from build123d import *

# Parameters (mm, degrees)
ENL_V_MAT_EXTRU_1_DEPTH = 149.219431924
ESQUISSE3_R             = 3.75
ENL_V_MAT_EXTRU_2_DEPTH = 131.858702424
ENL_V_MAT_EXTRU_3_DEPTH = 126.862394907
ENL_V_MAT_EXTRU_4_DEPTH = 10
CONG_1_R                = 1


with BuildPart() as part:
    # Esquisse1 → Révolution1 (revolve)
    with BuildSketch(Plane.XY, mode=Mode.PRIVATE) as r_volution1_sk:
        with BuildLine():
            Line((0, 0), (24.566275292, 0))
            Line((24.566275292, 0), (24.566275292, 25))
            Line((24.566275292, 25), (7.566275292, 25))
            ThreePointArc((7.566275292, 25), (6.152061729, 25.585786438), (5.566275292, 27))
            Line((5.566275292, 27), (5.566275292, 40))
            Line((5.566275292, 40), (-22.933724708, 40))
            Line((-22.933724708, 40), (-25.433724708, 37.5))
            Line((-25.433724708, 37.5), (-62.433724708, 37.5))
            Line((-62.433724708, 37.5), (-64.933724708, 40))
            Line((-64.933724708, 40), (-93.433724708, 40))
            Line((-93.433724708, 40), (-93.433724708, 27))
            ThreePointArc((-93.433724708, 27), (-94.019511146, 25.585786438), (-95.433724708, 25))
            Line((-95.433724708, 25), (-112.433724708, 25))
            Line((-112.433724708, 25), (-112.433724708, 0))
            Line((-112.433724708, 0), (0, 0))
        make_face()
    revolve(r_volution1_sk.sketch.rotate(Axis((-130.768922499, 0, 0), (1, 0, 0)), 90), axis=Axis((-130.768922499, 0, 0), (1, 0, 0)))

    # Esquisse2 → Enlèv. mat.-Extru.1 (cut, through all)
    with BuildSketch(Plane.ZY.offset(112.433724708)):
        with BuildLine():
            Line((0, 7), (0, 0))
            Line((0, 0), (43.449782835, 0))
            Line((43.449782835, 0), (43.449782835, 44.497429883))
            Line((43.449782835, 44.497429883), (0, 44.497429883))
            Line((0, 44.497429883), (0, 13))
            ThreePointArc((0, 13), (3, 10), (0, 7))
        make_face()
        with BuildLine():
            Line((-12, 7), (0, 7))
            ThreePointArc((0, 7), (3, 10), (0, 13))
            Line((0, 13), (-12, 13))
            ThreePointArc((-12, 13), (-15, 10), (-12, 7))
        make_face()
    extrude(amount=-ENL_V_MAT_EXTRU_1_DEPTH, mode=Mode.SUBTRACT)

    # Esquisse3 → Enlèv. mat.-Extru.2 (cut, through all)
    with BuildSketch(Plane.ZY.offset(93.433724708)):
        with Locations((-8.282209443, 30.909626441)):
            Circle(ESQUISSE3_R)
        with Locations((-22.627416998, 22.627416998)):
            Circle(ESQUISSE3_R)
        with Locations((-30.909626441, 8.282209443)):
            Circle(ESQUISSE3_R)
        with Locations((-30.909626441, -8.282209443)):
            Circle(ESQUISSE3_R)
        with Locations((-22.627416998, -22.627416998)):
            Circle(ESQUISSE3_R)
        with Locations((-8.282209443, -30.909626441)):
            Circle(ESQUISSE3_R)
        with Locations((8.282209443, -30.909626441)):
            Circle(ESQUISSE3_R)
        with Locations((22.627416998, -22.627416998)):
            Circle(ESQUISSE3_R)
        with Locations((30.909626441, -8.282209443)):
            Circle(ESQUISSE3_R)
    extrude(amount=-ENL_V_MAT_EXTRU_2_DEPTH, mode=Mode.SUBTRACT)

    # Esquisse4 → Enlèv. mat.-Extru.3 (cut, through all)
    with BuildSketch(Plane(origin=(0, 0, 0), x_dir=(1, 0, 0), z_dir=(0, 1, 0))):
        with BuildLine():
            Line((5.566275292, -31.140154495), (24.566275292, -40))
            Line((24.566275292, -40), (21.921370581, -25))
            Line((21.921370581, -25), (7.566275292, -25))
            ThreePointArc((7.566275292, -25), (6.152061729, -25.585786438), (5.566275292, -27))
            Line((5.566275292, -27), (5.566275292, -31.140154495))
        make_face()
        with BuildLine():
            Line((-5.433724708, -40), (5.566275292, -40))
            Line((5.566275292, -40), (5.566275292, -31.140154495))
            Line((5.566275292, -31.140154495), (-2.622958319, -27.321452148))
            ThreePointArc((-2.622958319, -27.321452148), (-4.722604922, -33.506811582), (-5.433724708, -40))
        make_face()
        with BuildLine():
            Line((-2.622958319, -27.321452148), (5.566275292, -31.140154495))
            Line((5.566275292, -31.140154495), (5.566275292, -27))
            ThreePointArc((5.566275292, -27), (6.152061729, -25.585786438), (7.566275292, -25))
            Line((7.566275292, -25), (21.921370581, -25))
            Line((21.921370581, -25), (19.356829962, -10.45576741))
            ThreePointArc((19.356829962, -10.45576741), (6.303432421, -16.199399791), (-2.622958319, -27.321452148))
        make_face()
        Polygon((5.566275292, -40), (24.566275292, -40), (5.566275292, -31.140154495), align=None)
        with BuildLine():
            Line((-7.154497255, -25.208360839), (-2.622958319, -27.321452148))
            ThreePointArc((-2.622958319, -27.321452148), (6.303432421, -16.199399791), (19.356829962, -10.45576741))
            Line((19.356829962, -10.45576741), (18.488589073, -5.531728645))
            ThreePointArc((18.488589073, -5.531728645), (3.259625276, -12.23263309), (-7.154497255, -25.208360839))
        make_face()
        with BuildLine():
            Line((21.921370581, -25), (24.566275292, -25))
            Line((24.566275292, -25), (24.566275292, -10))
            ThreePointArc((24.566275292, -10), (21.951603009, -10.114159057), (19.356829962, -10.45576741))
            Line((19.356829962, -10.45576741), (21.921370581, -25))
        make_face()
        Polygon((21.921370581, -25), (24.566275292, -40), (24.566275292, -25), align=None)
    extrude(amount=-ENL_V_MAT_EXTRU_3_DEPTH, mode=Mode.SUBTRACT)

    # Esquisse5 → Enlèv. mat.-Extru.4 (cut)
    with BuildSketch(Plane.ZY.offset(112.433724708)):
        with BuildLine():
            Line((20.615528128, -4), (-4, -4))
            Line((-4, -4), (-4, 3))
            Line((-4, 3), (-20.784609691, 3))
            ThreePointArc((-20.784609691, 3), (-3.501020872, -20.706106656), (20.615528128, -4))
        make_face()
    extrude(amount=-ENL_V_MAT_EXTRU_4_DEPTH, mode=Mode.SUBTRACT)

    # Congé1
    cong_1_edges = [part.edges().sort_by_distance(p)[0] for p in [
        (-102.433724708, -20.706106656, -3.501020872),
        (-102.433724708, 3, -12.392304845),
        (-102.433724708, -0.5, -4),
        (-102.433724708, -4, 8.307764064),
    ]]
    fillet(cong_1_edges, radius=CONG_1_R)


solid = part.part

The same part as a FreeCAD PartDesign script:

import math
import FreeCAD as App
import Part
import Sketcher
Q = App.Units.Quantity


def edges_at(feature, points):
    """Names of the edges that pass closest to the given points."""
    edges = feature.Shape.Edges
    near = lambda p: min(range(len(edges)), key=lambda i: edges[i].distToShape(Part.Vertex(*p))[0])
    return sorted({f"Edge{near(p) + 1}" for p in points})

doc = App.newDocument("Part")
params = doc.addObject("Spreadsheet::Sheet", "Params")
for row, (alias, value) in enumerate([
    ("sketch1_radius", "2 mm"),
    ("sketch1_width", "17 mm"),
    ("sketch1_width2", "37 mm"),
    ("sketch1_width3", "137 mm"),
    ("sketch1_height", "25 mm"),
    ("revolution_angle", "360 deg"),
    ("sketch2_radius", "3 mm"),
    ("sketch2_width", "7 mm"),
    ("sketch2_height", "12 mm"),
    ("sketch3_diameter", "7.5 mm"),
    ("sketch4_radius", "30 mm"),
    ("sketch4_radius2", "35 mm"),
    ("sketch5_radius", "21 mm"),
    ("sketch5_width", "7 mm"),
    ("pocket4_length", "10 mm"),
    ("fillet_radius", "1 mm"),
], start=1):
    params.set(f"A{row}", alias)
    params.set(f"B{row}", "=" + value)
    params.setAlias(f"B{row}", alias)

body = doc.addObject("PartDesign::Body", "Body")

sketch1 = doc.addObject("Sketcher::SketchObject", "Sketch")
body.addObject(sketch1)
sketch1.AttachmentSupport = (doc.XY_Plane, [""])
sketch1.MapMode = "FlatFace"
sketch1.addGeometry([
    Part.LineSegment(App.Vector(24.6, 0, 0), App.Vector(24.6, 25, 0)),
    Part.LineSegment(App.Vector(24.6, 25, 0), App.Vector(7.6, 25, 0)),
    Part.ArcOfCircle(Part.Circle(App.Vector(7.6, 27, 0), App.Vector(0, 0, 1), 2), math.radians(180), math.radians(270)),
    Part.LineSegment(App.Vector(5.6, 27, 0), App.Vector(5.6, 40, 0)),
    Part.LineSegment(App.Vector(5.6, 40, 0), App.Vector(-22.9, 40, 0)),
    Part.LineSegment(App.Vector(-22.9, 40, 0), App.Vector(-25.4, 37.5, 0)),
    Part.LineSegment(App.Vector(-25.4, 37.5, 0), App.Vector(-62.4, 37.5, 0)),
    Part.LineSegment(App.Vector(-62.4, 37.5, 0), App.Vector(-64.9, 40, 0)),
    Part.LineSegment(App.Vector(-64.9, 40, 0), App.Vector(-93.4, 40, 0)),
    Part.LineSegment(App.Vector(-93.4, 40, 0), App.Vector(-93.4, 27, 0)),
    Part.ArcOfCircle(Part.Circle(App.Vector(-95.4, 27, 0), App.Vector(0, 0, 1), 2), math.radians(-90), math.radians(0)),
    Part.LineSegment(App.Vector(-95.4, 25, 0), App.Vector(-112.4, 25, 0)),
    Part.LineSegment(App.Vector(-112.4, 25, 0), App.Vector(-112.4, 0, 0)),
    Part.LineSegment(App.Vector(-112.4, 0, 0), App.Vector(24.6, 0, 0)),
], False)
sketch1.addConstraint([
    Sketcher.Constraint("Coincident", 0, 2, 1, 1),
    Sketcher.Constraint("Tangent", 1, 2, 2, 2),
    Sketcher.Constraint("Tangent", 2, 1, 3, 1),
    Sketcher.Constraint("Coincident", 3, 2, 4, 1),
    Sketcher.Constraint("Coincident", 4, 2, 5, 1),
    Sketcher.Constraint("Coincident", 5, 2, 6, 1),
    Sketcher.Constraint("Coincident", 6, 2, 7, 1),
    Sketcher.Constraint("Coincident", 7, 2, 8, 1),
    Sketcher.Constraint("Coincident", 8, 2, 9, 1),
    Sketcher.Constraint("Tangent", 9, 2, 10, 2),
    Sketcher.Constraint("Tangent", 10, 1, 11, 1),
    Sketcher.Constraint("Coincident", 11, 2, 12, 1),
    Sketcher.Constraint("Coincident", 12, 2, 13, 1),
    Sketcher.Constraint("Coincident", 13, 2, 0, 1),
    Sketcher.Constraint("Vertical", 0),
    Sketcher.Constraint("Horizontal", 1),
    Sketcher.Constraint("Vertical", 3),
    Sketcher.Constraint("Horizontal", 4),
    Sketcher.Constraint("Horizontal", 6),
    Sketcher.Constraint("Horizontal", 8),
    Sketcher.Constraint("Vertical", 9),
    Sketcher.Constraint("Horizontal", 11),
    Sketcher.Constraint("Vertical", 12),
    Sketcher.Constraint("Horizontal", 13),
    Sketcher.Constraint("Equal", 2, 10),
    Sketcher.Constraint("PointOnObject", 12, 2, -1),
    Sketcher.Constraint("Perpendicular", 5, 7),
    Sketcher.Constraint("Horizontal", 2, 3, 10, 3),
    Sketcher.Constraint("Horizontal", 4, 2, 7, 2),
    Sketcher.Constraint("Equal", 4, 8),
    Sketcher.Constraint("Equal", 1, 11),
    Sketcher.Constraint("Equal", 5, 7),
    Sketcher.Constraint("Radius", 2, Q("2 mm")),
    Sketcher.Constraint("DistanceX", 1, 2, 1, 1, Q("17 mm")),
    Sketcher.Constraint("DistanceX", 6, 2, 6, 1, Q("37 mm")),
    Sketcher.Constraint("DistanceX", 13, 1, 13, 2, Q("137 mm")),
    Sketcher.Constraint("DistanceY", 0, 1, 0, 2, Q("25 mm")),
    Sketcher.Constraint("DistanceY", 3, 1, 3, 2, Q("13 mm")),
    Sketcher.Constraint("DistanceX", 4, 2, 4, 1, Q("28.5 mm")),
    Sketcher.Constraint("DistanceX", -1, 1, 2, 3, Q("7.566275 mm")),
])
sketch1.setExpression("Constraints[32]", "Params.sketch1_radius")
sketch1.setExpression("Constraints[33]", "Params.sketch1_width")
sketch1.setExpression("Constraints[34]", "Params.sketch1_width2")
sketch1.setExpression("Constraints[35]", "Params.sketch1_width3")
sketch1.setExpression("Constraints[36]", "Params.sketch1_height")
revolution = doc.addObject("PartDesign::Revolution", "Revolution")
body.addObject(revolution)
revolution.Profile = sketch1
revolution.ReferenceAxis = (sketch1, ["H_Axis"])
revolution.setExpression("Angle", "Params.revolution_angle")

sketch2 = doc.addObject("Sketcher::SketchObject", "Sketch001")
body.addObject(sketch2)
sketch2.AttachmentSupport = (doc.YZ_Plane, [""])
sketch2.MapMode = "FlatFace"
sketch2.AttachmentOffset = App.Placement(App.Vector(0, 0, -112.433725), App.Rotation())
sketch2.addGeometry([
    Part.LineSegment(App.Vector(7, 0, 0), App.Vector(0, 0, 0)),
    Part.LineSegment(App.Vector(0, 0, 0), App.Vector(0, 43.4, 0)),
    Part.LineSegment(App.Vector(0, 43.4, 0), App.Vector(44.5, 43.4, 0)),
    Part.LineSegment(App.Vector(44.5, 43.4, 0), App.Vector(44.5, 0, 0)),
    Part.LineSegment(App.Vector(44.5, 0, 0), App.Vector(13, 0, 0)),
    Part.LineSegment(App.Vector(13, 0, 0), App.Vector(13, -12, 0)),
    Part.ArcOfCircle(Part.Circle(App.Vector(10, -12, 0), App.Vector(0, 0, 1), 3), math.radians(180), math.radians(360)),
    Part.LineSegment(App.Vector(7, -12, 0), App.Vector(7, 0, 0)),
], False)
sketch2.addConstraint([
    Sketcher.Constraint("Coincident", 0, 2, 1, 1),
    Sketcher.Constraint("Coincident", 1, 2, 2, 1),
    Sketcher.Constraint("Coincident", 2, 2, 3, 1),
    Sketcher.Constraint("Coincident", 3, 2, 4, 1),
    Sketcher.Constraint("Coincident", 4, 2, 5, 1),
    Sketcher.Constraint("Tangent", 5, 2, 6, 2),
    Sketcher.Constraint("Tangent", 6, 1, 7, 1),
    Sketcher.Constraint("Coincident", 7, 2, 0, 1),
    Sketcher.Constraint("Horizontal", 0),
    Sketcher.Constraint("Vertical", 1),
    Sketcher.Constraint("Horizontal", 2),
    Sketcher.Constraint("Vertical", 3),
    Sketcher.Constraint("Horizontal", 4),
    Sketcher.Constraint("Vertical", 5),
    Sketcher.Constraint("Vertical", 7),
    Sketcher.Constraint("Coincident", 0, 2, -1, 1),
    Sketcher.Constraint("PointOnObject", 3, 2, -1),
    Sketcher.Constraint("Radius", 6, Q("3 mm")),
    Sketcher.Constraint("DistanceX", 0, 2, 0, 1, Q("7 mm")),
    Sketcher.Constraint("DistanceY", 5, 2, 5, 1, Q("12 mm")),
    Sketcher.Constraint("DistanceX", 2, 1, 2, 2, Q("44.49743 mm")),
    Sketcher.Constraint("DistanceY", 1, 1, 1, 2, Q("43.449783 mm")),
])
sketch2.setExpression("Constraints[17]", "Params.sketch2_radius")
sketch2.setExpression("Constraints[18]", "Params.sketch2_width")
sketch2.setExpression("Constraints[19]", "Params.sketch2_height")
pocket1 = doc.addObject("PartDesign::Pocket", "Pocket")
body.addObject(pocket1)
pocket1.Profile = sketch2
pocket1.Type = "ThroughAll"
pocket1.Reversed = True

sketch3 = doc.addObject("Sketcher::SketchObject", "Sketch002")
body.addObject(sketch3)
sketch3.AttachmentSupport = (doc.YZ_Plane, [""])
sketch3.MapMode = "FlatFace"
sketch3.AttachmentOffset = App.Placement(App.Vector(0, 0, -93.433725), App.Rotation())
sketch3.addGeometry([
    Part.Circle(App.Vector(30.9, -8.3, 0), App.Vector(0, 0, 1), 3.8),
    Part.Circle(App.Vector(22.6, -22.6, 0), App.Vector(0, 0, 1), 3.8),
    Part.Circle(App.Vector(8.3, -30.9, 0), App.Vector(0, 0, 1), 3.8),
    Part.Circle(App.Vector(-8.3, -30.9, 0), App.Vector(0, 0, 1), 3.8),
    Part.Circle(App.Vector(-22.6, -22.6, 0), App.Vector(0, 0, 1), 3.8),
    Part.Circle(App.Vector(-30.9, -8.3, 0), App.Vector(0, 0, 1), 3.8),
    Part.Circle(App.Vector(-30.9, 8.3, 0), App.Vector(0, 0, 1), 3.8),
    Part.Circle(App.Vector(-22.6, 22.6, 0), App.Vector(0, 0, 1), 3.8),
    Part.Circle(App.Vector(-8.3, 30.9, 0), App.Vector(0, 0, 1), 3.8),
], False)
sketch3.addConstraint([
    Sketcher.Constraint("Equal", 0, 1),
    Sketcher.Constraint("Equal", 1, 2),
    Sketcher.Constraint("Equal", 2, 3),
    Sketcher.Constraint("Equal", 3, 4),
    Sketcher.Constraint("Equal", 4, 5),
    Sketcher.Constraint("Equal", 5, 6),
    Sketcher.Constraint("Equal", 6, 7),
    Sketcher.Constraint("Equal", 7, 8),
    Sketcher.Constraint("Symmetric", 0, 3, 6, 3, -1, 1),
    Sketcher.Constraint("Symmetric", 1, 3, 7, 3, -1, 1),
    Sketcher.Constraint("Symmetric", 2, 3, 8, 3, -1, 1),
    Sketcher.Constraint("Symmetric", 2, 3, 3, 3, -2),
    Sketcher.Constraint("Symmetric", 1, 3, 4, 3, -2),
    Sketcher.Constraint("Symmetric", 0, 3, 5, 3, -2),
    Sketcher.Constraint("Diameter", 0, Q("7.5 mm")),
    Sketcher.Constraint("DistanceY", 0, 3, -1, 1, Q("8.282209 mm")),
    Sketcher.Constraint("DistanceX", -1, 1, 2, 3, Q("8.282209 mm")),
    Sketcher.Constraint("DistanceX", 1, 3, 0, 3, Q("8.282209 mm")),
    Sketcher.Constraint("DistanceY", 2, 3, 1, 3, Q("8.282209 mm")),
    Sketcher.Constraint("DistanceX", -1, 1, 0, 3, Q("30.909626 mm")),
    Sketcher.Constraint("DistanceY", 1, 3, -1, 1, Q("22.627417 mm")),
])
sketch3.setExpression("Constraints[14]", "Params.sketch3_diameter")
pocket2 = doc.addObject("PartDesign::Pocket", "Pocket001")
body.addObject(pocket2)
pocket2.Profile = sketch3
pocket2.Type = "ThroughAll"
pocket2.Reversed = True

sketch4 = doc.addObject("Sketcher::SketchObject", "Sketch003")
body.addObject(sketch4)
sketch4.AttachmentSupport = (doc.XZ_Plane, [""])
sketch4.MapMode = "FlatFace"
sketch4.addGeometry([
    Part.ArcOfCircle(Part.Circle(App.Vector(25, 40, 0), App.Vector(0, 0, 1), 30), math.radians(-100), math.radians(-90)),
    Part.LineSegment(App.Vector(19, 10, 0), App.Vector(18, 6, 0)),
    Part.ArcOfCircle(Part.Circle(App.Vector(25, 40, 0), App.Vector(0, 0, 1), 35), math.radians(-155), math.radians(-100)),
    Part.LineSegment(App.Vector(-7, 25, 0), App.Vector(-3, 27, 0)),
    Part.ArcOfCircle(Part.Circle(App.Vector(25, 40, 0), App.Vector(0, 0, 1), 30), math.radians(180), math.radians(205)),
    Part.LineSegment(App.Vector(-5, 40, 0), App.Vector(25, 40, 0)),
    Part.LineSegment(App.Vector(25, 40, 0), App.Vector(25, 10, 0)),
], False)
sketch4.addConstraint([
    Sketcher.Constraint("Coincident", 0, 1, 1, 1),
    Sketcher.Constraint("Coincident", 1, 2, 2, 2),
    Sketcher.Constraint("Coincident", 2, 1, 3, 1),
    Sketcher.Constraint("Coincident", 3, 2, 4, 2),
    Sketcher.Constraint("Coincident", 4, 1, 5, 1),
    Sketcher.Constraint("Coincident", 5, 2, 6, 1),
    Sketcher.Constraint("Coincident", 6, 2, 0, 2),
    Sketcher.Constraint("Horizontal", 5),
    Sketcher.Constraint("Vertical", 6),
    Sketcher.Constraint("Coincident", 2, 3, 0, 3),
    Sketcher.Constraint("Coincident", 4, 3, 0, 3),
    Sketcher.Constraint("Coincident", 5, 2, 0, 3),
    Sketcher.Constraint("Equal", 0, 4),
    Sketcher.Constraint("Radius", 0, Q("30 mm")),
    Sketcher.Constraint("Radius", 2, Q("35 mm")),
    Sketcher.Constraint("Angle", 1, Q("-100 deg")),
    Sketcher.Constraint("Angle", 3, Q("25 deg")),
    Sketcher.Constraint("DistanceY", -1, 1, 0, 3, Q("40 mm")),
    Sketcher.Constraint("DistanceX", -1, 1, 0, 1, Q("19.35683 mm")),
    Sketcher.Constraint("DistanceY", -1, 1, 1, 2, Q("5.531729 mm")),
    Sketcher.Constraint("DistanceY", -1, 1, 2, 1, Q("25.208361 mm")),
])
sketch4.setExpression("Constraints[13]", "Params.sketch4_radius")
sketch4.setExpression("Constraints[14]", "Params.sketch4_radius2")
pocket3 = doc.addObject("PartDesign::Pocket", "Pocket002")
body.addObject(pocket3)
pocket3.Profile = sketch4
pocket3.Type = "ThroughAll"
pocket3.Reversed = True

sketch5 = doc.addObject("Sketcher::SketchObject", "Sketch004")
body.addObject(sketch5)
sketch5.AttachmentSupport = (doc.YZ_Plane, [""])
sketch5.MapMode = "FlatFace"
sketch5.AttachmentOffset = App.Placement(App.Vector(0, 0, -112.433725), App.Rotation())
sketch5.addGeometry([
    Part.LineSegment(App.Vector(-4, 21, 0), App.Vector(-4, -4, 0)),
    Part.LineSegment(App.Vector(-4, -4, 0), App.Vector(3, -4, 0)),
    Part.LineSegment(App.Vector(3, -4, 0), App.Vector(3, -21, 0)),
    Part.ArcOfCircle(Part.Circle(App.Vector(0, 0, 0), App.Vector(0, 0, 1), 21), math.radians(101), math.radians(278)),
], False)
sketch5.addConstraint([
    Sketcher.Constraint("Coincident", 0, 2, 1, 1),
    Sketcher.Constraint("Coincident", 1, 2, 2, 1),
    Sketcher.Constraint("Coincident", 2, 2, 3, 2),
    Sketcher.Constraint("Coincident", 3, 1, 0, 1),
    Sketcher.Constraint("Vertical", 0),
    Sketcher.Constraint("Horizontal", 1),
    Sketcher.Constraint("Vertical", 2),
    Sketcher.Constraint("Coincident", 3, 3, -1, 1),
    Sketcher.Constraint("Radius", 3, Q("21 mm")),
    Sketcher.Constraint("DistanceX", 1, 1, 1, 2, Q("7 mm")),
    Sketcher.Constraint("DistanceX", 0, 2, -1, 1, Q("4 mm")),
    Sketcher.Constraint("DistanceY", 0, 2, -1, 1, Q("4 mm")),
])
sketch5.setExpression("Constraints[8]", "Params.sketch5_radius")
sketch5.setExpression("Constraints[9]", "Params.sketch5_width")
pocket4 = doc.addObject("PartDesign::Pocket", "Pocket003")
body.addObject(pocket4)
pocket4.Profile = sketch5
pocket4.setExpression("Length", "Params.pocket4_length")
pocket4.Reversed = True
doc.recompute()

fillet = doc.addObject("PartDesign::Fillet", "Fillet")
body.addObject(fillet)
fillet.Base = (pocket4, edges_at(pocket4, [
    (-102.434, -20.706, -3.501),
    (-102.434, 3, -12.392),
    (-102.434, -0.5, -4),
    (-102.434, -4, 8.308),
]))
fillet.setExpression("Radius", "Params.fillet_radius")

doc.recompute()
